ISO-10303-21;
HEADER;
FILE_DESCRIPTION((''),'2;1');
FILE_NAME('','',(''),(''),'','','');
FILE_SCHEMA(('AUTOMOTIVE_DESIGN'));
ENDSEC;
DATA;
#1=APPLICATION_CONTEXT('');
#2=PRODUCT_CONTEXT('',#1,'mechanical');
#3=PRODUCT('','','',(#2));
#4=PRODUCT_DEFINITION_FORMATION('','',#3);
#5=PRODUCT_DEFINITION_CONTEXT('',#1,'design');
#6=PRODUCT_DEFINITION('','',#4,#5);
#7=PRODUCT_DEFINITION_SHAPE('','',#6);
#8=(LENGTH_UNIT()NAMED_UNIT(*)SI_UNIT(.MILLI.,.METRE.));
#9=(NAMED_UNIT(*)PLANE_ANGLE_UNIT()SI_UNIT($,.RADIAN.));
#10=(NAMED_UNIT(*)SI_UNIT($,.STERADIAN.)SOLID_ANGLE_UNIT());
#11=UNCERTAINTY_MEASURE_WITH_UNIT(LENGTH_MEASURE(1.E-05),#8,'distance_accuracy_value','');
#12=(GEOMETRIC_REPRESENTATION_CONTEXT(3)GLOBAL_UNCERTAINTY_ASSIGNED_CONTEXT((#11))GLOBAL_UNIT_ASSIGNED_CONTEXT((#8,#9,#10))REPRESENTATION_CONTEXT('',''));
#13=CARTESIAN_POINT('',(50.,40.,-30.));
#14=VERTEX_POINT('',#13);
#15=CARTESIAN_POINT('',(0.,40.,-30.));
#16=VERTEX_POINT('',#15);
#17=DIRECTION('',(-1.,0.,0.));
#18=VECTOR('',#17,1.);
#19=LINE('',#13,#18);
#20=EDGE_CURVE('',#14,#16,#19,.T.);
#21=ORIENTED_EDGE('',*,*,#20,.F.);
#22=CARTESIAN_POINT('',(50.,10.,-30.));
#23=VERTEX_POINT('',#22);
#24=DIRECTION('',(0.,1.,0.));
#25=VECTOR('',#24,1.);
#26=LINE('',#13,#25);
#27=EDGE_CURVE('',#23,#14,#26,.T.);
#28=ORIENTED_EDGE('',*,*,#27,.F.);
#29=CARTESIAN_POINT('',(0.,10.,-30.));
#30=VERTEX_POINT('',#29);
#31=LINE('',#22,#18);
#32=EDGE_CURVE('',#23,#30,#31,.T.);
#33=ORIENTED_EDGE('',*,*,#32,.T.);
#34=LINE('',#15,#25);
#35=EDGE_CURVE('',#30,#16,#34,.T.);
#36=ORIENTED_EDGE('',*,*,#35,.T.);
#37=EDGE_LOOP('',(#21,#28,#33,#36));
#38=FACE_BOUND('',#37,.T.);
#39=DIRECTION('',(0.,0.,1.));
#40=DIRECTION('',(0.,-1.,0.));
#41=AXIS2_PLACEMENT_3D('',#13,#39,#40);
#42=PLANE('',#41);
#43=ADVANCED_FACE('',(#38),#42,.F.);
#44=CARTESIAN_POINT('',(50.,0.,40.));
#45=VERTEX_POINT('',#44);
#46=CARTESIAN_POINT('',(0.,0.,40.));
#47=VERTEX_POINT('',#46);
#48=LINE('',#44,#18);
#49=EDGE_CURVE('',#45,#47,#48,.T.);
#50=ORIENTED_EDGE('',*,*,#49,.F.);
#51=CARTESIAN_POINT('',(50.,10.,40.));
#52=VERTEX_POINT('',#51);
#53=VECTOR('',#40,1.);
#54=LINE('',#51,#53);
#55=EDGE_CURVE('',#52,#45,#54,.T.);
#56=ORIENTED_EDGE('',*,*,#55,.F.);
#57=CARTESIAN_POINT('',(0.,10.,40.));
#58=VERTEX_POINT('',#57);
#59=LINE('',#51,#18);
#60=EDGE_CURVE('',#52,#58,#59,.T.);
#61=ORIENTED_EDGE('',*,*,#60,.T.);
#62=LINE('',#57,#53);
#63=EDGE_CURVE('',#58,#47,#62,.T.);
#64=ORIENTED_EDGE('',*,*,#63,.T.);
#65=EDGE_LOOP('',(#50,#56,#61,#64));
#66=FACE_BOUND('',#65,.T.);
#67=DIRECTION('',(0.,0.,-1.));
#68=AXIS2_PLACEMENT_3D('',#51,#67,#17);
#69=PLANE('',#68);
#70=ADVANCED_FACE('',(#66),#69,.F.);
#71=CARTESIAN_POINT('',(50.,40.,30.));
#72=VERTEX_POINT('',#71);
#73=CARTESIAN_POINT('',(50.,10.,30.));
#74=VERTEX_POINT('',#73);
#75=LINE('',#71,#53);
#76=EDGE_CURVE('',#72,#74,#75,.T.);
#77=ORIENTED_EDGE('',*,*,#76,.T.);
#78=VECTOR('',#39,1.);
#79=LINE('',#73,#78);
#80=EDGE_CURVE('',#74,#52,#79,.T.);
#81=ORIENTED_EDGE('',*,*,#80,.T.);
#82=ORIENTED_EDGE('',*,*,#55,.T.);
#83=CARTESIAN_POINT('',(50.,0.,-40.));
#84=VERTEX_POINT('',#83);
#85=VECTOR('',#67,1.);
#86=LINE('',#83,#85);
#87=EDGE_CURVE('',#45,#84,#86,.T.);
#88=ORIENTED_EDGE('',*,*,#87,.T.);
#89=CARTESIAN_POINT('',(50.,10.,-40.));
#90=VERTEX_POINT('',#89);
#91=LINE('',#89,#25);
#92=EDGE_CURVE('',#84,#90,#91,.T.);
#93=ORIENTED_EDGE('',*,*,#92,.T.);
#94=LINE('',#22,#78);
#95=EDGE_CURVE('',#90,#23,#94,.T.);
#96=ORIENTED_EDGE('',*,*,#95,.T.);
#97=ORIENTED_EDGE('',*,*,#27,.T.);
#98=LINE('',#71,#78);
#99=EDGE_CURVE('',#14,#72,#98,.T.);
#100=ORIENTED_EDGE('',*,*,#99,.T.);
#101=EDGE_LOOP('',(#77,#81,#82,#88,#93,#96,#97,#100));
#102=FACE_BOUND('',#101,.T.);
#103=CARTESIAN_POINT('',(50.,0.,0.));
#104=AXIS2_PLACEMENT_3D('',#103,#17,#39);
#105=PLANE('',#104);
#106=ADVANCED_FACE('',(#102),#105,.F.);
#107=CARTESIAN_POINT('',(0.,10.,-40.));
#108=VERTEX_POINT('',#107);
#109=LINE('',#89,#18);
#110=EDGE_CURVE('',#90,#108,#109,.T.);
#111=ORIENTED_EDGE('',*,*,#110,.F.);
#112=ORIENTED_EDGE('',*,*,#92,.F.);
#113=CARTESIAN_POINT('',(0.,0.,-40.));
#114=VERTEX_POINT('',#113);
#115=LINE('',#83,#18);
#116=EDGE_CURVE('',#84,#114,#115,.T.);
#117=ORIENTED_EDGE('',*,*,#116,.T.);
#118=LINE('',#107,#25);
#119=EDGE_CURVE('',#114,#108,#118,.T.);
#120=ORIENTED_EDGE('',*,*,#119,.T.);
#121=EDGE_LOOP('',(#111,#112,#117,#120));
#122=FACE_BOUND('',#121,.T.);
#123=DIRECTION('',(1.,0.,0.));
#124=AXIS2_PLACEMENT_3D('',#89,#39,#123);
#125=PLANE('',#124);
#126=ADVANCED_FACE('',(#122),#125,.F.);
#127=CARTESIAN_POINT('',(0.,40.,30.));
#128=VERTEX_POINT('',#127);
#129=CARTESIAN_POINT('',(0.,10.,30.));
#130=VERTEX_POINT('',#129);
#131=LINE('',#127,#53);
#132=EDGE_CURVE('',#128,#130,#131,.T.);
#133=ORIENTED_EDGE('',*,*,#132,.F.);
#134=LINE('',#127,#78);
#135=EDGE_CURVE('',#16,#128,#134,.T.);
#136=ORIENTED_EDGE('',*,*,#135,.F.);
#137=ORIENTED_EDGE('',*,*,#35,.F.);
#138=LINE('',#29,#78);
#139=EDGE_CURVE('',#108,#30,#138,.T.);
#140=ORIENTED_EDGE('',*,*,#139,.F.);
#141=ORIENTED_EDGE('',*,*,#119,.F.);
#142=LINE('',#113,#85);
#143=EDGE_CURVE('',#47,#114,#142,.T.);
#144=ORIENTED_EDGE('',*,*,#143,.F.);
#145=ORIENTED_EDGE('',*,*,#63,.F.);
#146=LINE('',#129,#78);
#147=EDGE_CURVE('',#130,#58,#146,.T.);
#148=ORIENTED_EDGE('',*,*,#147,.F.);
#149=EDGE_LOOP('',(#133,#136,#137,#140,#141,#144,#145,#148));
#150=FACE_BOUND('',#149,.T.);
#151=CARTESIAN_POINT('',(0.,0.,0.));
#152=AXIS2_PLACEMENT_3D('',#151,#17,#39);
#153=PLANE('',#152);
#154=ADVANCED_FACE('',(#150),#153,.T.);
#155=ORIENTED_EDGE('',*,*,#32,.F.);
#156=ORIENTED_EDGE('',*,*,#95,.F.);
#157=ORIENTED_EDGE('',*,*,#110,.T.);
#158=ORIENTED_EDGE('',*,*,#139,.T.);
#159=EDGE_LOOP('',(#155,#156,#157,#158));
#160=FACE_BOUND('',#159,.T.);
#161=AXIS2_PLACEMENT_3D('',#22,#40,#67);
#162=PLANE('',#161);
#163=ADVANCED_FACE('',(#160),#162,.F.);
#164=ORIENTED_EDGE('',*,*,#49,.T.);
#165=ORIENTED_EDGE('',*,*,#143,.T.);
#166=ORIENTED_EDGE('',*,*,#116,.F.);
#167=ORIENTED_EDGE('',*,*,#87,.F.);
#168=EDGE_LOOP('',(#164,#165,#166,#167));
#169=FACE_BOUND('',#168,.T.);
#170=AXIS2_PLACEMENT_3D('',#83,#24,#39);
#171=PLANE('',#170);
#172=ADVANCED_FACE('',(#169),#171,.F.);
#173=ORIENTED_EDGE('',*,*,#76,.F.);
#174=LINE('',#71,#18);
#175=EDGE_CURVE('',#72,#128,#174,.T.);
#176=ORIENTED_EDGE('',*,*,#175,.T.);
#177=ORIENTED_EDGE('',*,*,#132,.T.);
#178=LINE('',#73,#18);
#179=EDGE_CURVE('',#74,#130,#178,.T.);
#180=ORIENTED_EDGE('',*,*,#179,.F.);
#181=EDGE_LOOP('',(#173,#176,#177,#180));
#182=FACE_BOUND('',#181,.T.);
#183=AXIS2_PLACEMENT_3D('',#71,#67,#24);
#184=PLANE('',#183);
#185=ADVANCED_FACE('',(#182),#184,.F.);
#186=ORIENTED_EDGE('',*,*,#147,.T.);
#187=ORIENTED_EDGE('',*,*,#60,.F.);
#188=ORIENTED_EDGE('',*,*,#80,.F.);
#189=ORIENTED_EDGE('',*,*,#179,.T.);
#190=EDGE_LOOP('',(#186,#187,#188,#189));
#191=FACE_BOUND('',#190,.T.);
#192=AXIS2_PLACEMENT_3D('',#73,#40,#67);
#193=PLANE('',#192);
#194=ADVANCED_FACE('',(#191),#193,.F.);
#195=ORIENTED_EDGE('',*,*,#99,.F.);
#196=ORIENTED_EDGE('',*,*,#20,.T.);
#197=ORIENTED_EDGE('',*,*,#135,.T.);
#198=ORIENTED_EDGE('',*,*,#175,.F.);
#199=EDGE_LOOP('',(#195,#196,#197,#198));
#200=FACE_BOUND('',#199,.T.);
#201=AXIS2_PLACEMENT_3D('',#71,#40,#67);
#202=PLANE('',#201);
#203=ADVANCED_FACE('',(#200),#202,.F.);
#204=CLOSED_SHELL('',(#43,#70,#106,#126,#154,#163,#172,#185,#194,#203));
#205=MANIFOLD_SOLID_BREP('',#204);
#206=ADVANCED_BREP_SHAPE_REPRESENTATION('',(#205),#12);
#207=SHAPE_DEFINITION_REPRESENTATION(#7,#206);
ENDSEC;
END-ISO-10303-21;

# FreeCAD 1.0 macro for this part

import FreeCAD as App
import Part
import Sketcher

V = App.Vector


def add_polygon(sketch, points):
    """Adds a closed chain of lines whose ends are joined by coincident constraints."""
    first, n = sketch.GeometryCount, len(points)
    for a, b in zip(points, points[1:] + points[:1]):
        sketch.addGeometry(Part.LineSegment(App.Vector(*a, 0), App.Vector(*b, 0)), False)
    for i in range(n):
        sketch.addConstraint(Sketcher.Constraint("Coincident", first + i, 2, first + (i + 1) % n, 1))

doc = App.newDocument("Part")
body = doc.addObject("PartDesign::Body", "Body")

# Sketch on YZ plane
sketch1 = body.newObject("Sketcher::SketchObject", "Sketch")
sketch1.AttachmentSupport = (doc.getObject("YZ_Plane"), [""])
sketch1.MapMode = "FlatFace"
add_polygon(sketch1, [(40, -30), (40, 30), (10, 30), (10, 40), (0, 40), (0, -40), (10, -40), (10, -30)])  # lines 0-7
sketch1.addConstraint([
    Sketcher.Constraint("Vertical", 0),
    Sketcher.Constraint("Horizontal", 1),
    Sketcher.Constraint("Vertical", 2),
    Sketcher.Constraint("Horizontal", 3),
    Sketcher.Constraint("Vertical", 4),
    Sketcher.Constraint("Horizontal", 5),
    Sketcher.Constraint("Vertical", 6),
    Sketcher.Constraint("Horizontal", 7),
    Sketcher.Constraint("Symmetric", 3, 2, 4, 2, -1, 1),
    Sketcher.Constraint("Symmetric", 1, 2, 6, 2, -1),
    Sketcher.Constraint("Equal", 5, 2),
    Sketcher.Constraint("DistanceX", 1, 2, 1, 1, 30.0),
    Sketcher.Constraint("DistanceX", 3, 2, 3, 1, 10.0),
    Sketcher.Constraint("DistanceY", 0, 1, 0, 2, 60.0),
])
pad1 = body.newObject("PartDesign::Pad", "Pad")
pad1.Profile = sketch1
pad1.Length = 50

doc.recompute()
